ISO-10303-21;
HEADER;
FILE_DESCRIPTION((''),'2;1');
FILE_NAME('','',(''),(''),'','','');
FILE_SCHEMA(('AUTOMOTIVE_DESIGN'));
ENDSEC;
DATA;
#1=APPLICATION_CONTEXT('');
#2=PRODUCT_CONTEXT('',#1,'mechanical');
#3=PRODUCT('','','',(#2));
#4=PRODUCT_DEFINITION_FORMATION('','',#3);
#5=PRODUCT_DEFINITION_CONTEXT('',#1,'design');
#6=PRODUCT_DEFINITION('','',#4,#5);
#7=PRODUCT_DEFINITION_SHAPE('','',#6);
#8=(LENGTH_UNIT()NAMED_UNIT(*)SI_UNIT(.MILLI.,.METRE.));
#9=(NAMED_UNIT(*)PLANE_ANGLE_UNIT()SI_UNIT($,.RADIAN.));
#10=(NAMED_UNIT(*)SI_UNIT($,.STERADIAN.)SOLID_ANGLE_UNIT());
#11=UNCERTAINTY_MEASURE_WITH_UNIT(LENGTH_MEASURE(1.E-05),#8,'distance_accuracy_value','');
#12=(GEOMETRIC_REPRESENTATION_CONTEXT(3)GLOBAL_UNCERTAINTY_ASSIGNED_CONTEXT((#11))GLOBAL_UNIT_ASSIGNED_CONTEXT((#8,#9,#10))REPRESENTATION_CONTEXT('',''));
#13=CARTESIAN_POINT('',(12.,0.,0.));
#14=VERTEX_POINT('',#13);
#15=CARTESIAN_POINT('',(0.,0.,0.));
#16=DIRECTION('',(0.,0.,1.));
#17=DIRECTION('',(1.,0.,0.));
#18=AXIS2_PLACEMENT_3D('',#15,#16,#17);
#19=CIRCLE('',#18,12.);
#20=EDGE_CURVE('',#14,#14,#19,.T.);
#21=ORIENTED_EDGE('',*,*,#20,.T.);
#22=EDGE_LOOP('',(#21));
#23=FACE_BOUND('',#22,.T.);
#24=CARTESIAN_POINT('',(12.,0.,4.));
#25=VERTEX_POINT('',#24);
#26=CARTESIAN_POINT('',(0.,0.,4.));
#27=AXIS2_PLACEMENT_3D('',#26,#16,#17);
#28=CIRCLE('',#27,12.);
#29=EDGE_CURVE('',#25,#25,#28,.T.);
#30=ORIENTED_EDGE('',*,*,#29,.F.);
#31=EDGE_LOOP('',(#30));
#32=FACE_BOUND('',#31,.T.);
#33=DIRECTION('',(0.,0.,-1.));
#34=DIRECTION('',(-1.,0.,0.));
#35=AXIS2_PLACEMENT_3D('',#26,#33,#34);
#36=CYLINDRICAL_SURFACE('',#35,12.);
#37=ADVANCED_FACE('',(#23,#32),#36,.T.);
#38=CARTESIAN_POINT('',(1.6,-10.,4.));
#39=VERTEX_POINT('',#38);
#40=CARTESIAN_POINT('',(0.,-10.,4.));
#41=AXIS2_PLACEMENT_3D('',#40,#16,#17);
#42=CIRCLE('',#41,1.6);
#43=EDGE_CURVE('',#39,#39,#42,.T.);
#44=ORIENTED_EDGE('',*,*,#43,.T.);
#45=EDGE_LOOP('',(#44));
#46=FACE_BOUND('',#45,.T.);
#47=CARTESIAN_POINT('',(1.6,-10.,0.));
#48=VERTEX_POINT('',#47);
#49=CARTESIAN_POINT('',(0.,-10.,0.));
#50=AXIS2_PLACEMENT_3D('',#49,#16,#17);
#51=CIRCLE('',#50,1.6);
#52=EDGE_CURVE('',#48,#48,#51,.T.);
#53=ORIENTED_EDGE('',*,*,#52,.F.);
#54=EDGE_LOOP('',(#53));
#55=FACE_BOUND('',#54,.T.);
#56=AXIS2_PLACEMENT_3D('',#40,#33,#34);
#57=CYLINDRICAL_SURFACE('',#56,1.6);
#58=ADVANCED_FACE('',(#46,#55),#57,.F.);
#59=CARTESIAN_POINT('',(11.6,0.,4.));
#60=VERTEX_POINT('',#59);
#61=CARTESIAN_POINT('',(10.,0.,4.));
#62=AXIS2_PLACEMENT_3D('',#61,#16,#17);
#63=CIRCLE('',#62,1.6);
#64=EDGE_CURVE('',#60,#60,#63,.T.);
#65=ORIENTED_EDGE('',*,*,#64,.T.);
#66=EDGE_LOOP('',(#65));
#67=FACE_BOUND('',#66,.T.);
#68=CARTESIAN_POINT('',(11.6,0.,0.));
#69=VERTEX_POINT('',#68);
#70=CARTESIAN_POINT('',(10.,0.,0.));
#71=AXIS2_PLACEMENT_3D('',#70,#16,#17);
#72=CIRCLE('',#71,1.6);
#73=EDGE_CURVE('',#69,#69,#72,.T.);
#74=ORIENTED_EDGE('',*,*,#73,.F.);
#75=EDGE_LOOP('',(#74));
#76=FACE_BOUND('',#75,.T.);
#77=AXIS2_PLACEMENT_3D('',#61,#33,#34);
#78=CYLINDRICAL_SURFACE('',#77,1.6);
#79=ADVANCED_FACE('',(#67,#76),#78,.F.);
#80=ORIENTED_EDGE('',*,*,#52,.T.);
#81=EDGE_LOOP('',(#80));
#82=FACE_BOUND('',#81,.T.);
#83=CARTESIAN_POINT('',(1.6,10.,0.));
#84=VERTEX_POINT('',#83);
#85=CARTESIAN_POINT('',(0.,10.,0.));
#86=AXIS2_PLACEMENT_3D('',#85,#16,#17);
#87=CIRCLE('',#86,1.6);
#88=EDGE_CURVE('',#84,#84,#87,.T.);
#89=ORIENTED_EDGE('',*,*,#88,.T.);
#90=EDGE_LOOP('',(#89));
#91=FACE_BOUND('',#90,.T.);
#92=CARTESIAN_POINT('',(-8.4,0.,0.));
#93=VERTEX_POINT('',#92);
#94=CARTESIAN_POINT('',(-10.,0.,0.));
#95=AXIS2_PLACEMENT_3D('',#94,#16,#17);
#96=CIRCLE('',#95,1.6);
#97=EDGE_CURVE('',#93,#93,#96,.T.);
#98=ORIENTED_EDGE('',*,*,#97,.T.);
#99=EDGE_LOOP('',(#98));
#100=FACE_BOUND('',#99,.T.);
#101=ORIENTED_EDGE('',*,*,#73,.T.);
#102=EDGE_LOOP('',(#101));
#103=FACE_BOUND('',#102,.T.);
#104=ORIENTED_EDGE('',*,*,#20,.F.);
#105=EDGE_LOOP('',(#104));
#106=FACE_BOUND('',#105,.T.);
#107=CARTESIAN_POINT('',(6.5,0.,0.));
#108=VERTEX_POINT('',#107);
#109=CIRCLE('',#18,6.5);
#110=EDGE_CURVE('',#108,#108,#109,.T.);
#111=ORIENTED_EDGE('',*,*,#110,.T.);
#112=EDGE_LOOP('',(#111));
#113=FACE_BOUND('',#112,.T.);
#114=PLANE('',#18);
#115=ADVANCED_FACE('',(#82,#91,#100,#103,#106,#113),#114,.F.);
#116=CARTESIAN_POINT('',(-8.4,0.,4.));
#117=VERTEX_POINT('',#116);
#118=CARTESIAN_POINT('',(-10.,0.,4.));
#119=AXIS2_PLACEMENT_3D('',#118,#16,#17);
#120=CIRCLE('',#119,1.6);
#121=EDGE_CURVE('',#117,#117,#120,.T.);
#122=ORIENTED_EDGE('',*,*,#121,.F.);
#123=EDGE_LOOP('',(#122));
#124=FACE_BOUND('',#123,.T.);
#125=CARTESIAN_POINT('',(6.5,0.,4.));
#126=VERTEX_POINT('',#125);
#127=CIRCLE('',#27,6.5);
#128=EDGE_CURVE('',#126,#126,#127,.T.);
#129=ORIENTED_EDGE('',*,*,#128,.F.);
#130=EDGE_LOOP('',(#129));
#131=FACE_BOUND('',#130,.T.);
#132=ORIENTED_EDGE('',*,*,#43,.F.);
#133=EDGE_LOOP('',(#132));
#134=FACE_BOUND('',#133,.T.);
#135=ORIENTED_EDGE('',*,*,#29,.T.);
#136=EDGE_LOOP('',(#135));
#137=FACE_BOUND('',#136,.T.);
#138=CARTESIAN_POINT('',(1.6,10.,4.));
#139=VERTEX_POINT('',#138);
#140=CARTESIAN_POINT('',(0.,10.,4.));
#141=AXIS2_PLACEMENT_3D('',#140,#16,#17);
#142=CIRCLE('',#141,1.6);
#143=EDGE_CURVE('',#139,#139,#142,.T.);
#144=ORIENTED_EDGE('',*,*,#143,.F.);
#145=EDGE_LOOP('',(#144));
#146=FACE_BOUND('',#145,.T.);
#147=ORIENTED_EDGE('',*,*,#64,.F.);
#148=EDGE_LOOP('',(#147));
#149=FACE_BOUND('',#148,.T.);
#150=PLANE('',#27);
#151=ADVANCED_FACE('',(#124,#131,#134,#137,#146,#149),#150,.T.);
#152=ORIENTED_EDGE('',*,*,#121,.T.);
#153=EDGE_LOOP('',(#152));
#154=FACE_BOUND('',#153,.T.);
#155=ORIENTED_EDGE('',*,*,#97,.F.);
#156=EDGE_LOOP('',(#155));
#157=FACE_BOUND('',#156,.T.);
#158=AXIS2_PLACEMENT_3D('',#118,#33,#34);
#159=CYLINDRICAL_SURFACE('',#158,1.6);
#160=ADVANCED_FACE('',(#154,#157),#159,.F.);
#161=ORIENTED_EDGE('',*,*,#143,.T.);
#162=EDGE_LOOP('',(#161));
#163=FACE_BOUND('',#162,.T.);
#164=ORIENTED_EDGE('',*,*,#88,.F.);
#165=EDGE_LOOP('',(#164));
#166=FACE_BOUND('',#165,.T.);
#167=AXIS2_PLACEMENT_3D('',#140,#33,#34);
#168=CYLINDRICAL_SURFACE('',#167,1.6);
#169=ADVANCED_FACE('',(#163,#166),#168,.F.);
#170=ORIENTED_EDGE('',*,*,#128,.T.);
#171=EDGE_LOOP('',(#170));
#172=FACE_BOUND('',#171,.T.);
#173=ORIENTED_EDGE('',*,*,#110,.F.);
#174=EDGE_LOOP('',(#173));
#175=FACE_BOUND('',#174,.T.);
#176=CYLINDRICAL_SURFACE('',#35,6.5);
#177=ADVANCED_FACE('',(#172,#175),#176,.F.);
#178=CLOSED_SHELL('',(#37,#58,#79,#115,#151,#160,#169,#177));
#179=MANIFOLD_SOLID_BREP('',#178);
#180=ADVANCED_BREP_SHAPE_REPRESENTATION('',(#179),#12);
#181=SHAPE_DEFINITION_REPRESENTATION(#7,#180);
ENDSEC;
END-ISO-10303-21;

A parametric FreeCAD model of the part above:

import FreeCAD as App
import Part
import Sketcher
Q = App.Units.Quantity

doc = App.newDocument("Part")
params = doc.addObject("Spreadsheet::Sheet", "Params")
for row, (alias, value) in enumerate([
    ("sketch1_diameter", "24 mm"),
    ("sketch1_diameter2", "13 mm"),
    ("sketch1_diameter3", "3.2 mm"),
    ("pad1_length", "4 mm"),
], start=1):
    params.set(f"A{row}", alias)
    params.set(f"B{row}", "=" + value)
    params.setAlias(f"B{row}", alias)

body = doc.addObject("PartDesign::Body", "Body")

# Sketch on XY plane
sketch1 = doc.addObject("Sketcher::SketchObject", "Sketch")
body.addObject(sketch1)
sketch1.AttachmentSupport = (doc.XY_Plane, [""])
sketch1.MapMode = "FlatFace"
sketch1.addGeometry([
    Part.Circle(App.Vector(0, 0, 0), App.Vector(0, 0, 1), 12),  # 0
    Part.Circle(App.Vector(0, -10, 0), App.Vector(0, 0, 1), 1.6),  # 1
    Part.Circle(App.Vector(-10, 0, 0), App.Vector(0, 0, 1), 1.6),  # 2
    Part.Circle(App.Vector(0, 0, 0), App.Vector(0, 0, 1), 6.5),  # 3
    Part.Circle(App.Vector(10, 0, 0), App.Vector(0, 0, 1), 1.6),  # 4
    Part.Circle(App.Vector(0, 10, 0), App.Vector(0, 0, 1), 1.6),  # 5
], False)
sketch1.addConstraint([
    Sketcher.Constraint("Coincident", 0, 3, -1, 1),
    Sketcher.Constraint("Coincident", 3, 3, -1, 1),
    Sketcher.Constraint("Equal", 1, 2),
    Sketcher.Constraint("Equal", 2, 4),
    Sketcher.Constraint("Equal", 4, 5),
    Sketcher.Constraint("Symmetric", 2, 3, 4, 3, -1, 1),
    Sketcher.Constraint("Symmetric", 1, 3, 5, 3, -1, 1),
    Sketcher.Constraint("PointOnObject", 1, 3, -2),
    Sketcher.Constraint("PointOnObject", 2, 3, -1),
    Sketcher.Constraint("Diameter", 0, Q("24 mm")),
    Sketcher.Constraint("Diameter", 3, Q("13 mm")),
    Sketcher.Constraint("Diameter", 1, Q("3.2 mm")),
    Sketcher.Constraint("DistanceY", 1, 3, -1, 1, Q("10 mm")),
    Sketcher.Constraint("DistanceX", 2, 3, -1, 1, Q("10 mm")),
])
sketch1.setExpression("Constraints[9]", "Params.sketch1_diameter")
sketch1.setExpression("Constraints[10]", "Params.sketch1_diameter2")
sketch1.setExpression("Constraints[11]", "Params.sketch1_diameter3")
pad1 = doc.addObject("PartDesign::Pad", "Pad")
body.addObject(pad1)
pad1.Profile = sketch1
pad1.setExpression("Length", "Params.pad1_length")

doc.recompute()
